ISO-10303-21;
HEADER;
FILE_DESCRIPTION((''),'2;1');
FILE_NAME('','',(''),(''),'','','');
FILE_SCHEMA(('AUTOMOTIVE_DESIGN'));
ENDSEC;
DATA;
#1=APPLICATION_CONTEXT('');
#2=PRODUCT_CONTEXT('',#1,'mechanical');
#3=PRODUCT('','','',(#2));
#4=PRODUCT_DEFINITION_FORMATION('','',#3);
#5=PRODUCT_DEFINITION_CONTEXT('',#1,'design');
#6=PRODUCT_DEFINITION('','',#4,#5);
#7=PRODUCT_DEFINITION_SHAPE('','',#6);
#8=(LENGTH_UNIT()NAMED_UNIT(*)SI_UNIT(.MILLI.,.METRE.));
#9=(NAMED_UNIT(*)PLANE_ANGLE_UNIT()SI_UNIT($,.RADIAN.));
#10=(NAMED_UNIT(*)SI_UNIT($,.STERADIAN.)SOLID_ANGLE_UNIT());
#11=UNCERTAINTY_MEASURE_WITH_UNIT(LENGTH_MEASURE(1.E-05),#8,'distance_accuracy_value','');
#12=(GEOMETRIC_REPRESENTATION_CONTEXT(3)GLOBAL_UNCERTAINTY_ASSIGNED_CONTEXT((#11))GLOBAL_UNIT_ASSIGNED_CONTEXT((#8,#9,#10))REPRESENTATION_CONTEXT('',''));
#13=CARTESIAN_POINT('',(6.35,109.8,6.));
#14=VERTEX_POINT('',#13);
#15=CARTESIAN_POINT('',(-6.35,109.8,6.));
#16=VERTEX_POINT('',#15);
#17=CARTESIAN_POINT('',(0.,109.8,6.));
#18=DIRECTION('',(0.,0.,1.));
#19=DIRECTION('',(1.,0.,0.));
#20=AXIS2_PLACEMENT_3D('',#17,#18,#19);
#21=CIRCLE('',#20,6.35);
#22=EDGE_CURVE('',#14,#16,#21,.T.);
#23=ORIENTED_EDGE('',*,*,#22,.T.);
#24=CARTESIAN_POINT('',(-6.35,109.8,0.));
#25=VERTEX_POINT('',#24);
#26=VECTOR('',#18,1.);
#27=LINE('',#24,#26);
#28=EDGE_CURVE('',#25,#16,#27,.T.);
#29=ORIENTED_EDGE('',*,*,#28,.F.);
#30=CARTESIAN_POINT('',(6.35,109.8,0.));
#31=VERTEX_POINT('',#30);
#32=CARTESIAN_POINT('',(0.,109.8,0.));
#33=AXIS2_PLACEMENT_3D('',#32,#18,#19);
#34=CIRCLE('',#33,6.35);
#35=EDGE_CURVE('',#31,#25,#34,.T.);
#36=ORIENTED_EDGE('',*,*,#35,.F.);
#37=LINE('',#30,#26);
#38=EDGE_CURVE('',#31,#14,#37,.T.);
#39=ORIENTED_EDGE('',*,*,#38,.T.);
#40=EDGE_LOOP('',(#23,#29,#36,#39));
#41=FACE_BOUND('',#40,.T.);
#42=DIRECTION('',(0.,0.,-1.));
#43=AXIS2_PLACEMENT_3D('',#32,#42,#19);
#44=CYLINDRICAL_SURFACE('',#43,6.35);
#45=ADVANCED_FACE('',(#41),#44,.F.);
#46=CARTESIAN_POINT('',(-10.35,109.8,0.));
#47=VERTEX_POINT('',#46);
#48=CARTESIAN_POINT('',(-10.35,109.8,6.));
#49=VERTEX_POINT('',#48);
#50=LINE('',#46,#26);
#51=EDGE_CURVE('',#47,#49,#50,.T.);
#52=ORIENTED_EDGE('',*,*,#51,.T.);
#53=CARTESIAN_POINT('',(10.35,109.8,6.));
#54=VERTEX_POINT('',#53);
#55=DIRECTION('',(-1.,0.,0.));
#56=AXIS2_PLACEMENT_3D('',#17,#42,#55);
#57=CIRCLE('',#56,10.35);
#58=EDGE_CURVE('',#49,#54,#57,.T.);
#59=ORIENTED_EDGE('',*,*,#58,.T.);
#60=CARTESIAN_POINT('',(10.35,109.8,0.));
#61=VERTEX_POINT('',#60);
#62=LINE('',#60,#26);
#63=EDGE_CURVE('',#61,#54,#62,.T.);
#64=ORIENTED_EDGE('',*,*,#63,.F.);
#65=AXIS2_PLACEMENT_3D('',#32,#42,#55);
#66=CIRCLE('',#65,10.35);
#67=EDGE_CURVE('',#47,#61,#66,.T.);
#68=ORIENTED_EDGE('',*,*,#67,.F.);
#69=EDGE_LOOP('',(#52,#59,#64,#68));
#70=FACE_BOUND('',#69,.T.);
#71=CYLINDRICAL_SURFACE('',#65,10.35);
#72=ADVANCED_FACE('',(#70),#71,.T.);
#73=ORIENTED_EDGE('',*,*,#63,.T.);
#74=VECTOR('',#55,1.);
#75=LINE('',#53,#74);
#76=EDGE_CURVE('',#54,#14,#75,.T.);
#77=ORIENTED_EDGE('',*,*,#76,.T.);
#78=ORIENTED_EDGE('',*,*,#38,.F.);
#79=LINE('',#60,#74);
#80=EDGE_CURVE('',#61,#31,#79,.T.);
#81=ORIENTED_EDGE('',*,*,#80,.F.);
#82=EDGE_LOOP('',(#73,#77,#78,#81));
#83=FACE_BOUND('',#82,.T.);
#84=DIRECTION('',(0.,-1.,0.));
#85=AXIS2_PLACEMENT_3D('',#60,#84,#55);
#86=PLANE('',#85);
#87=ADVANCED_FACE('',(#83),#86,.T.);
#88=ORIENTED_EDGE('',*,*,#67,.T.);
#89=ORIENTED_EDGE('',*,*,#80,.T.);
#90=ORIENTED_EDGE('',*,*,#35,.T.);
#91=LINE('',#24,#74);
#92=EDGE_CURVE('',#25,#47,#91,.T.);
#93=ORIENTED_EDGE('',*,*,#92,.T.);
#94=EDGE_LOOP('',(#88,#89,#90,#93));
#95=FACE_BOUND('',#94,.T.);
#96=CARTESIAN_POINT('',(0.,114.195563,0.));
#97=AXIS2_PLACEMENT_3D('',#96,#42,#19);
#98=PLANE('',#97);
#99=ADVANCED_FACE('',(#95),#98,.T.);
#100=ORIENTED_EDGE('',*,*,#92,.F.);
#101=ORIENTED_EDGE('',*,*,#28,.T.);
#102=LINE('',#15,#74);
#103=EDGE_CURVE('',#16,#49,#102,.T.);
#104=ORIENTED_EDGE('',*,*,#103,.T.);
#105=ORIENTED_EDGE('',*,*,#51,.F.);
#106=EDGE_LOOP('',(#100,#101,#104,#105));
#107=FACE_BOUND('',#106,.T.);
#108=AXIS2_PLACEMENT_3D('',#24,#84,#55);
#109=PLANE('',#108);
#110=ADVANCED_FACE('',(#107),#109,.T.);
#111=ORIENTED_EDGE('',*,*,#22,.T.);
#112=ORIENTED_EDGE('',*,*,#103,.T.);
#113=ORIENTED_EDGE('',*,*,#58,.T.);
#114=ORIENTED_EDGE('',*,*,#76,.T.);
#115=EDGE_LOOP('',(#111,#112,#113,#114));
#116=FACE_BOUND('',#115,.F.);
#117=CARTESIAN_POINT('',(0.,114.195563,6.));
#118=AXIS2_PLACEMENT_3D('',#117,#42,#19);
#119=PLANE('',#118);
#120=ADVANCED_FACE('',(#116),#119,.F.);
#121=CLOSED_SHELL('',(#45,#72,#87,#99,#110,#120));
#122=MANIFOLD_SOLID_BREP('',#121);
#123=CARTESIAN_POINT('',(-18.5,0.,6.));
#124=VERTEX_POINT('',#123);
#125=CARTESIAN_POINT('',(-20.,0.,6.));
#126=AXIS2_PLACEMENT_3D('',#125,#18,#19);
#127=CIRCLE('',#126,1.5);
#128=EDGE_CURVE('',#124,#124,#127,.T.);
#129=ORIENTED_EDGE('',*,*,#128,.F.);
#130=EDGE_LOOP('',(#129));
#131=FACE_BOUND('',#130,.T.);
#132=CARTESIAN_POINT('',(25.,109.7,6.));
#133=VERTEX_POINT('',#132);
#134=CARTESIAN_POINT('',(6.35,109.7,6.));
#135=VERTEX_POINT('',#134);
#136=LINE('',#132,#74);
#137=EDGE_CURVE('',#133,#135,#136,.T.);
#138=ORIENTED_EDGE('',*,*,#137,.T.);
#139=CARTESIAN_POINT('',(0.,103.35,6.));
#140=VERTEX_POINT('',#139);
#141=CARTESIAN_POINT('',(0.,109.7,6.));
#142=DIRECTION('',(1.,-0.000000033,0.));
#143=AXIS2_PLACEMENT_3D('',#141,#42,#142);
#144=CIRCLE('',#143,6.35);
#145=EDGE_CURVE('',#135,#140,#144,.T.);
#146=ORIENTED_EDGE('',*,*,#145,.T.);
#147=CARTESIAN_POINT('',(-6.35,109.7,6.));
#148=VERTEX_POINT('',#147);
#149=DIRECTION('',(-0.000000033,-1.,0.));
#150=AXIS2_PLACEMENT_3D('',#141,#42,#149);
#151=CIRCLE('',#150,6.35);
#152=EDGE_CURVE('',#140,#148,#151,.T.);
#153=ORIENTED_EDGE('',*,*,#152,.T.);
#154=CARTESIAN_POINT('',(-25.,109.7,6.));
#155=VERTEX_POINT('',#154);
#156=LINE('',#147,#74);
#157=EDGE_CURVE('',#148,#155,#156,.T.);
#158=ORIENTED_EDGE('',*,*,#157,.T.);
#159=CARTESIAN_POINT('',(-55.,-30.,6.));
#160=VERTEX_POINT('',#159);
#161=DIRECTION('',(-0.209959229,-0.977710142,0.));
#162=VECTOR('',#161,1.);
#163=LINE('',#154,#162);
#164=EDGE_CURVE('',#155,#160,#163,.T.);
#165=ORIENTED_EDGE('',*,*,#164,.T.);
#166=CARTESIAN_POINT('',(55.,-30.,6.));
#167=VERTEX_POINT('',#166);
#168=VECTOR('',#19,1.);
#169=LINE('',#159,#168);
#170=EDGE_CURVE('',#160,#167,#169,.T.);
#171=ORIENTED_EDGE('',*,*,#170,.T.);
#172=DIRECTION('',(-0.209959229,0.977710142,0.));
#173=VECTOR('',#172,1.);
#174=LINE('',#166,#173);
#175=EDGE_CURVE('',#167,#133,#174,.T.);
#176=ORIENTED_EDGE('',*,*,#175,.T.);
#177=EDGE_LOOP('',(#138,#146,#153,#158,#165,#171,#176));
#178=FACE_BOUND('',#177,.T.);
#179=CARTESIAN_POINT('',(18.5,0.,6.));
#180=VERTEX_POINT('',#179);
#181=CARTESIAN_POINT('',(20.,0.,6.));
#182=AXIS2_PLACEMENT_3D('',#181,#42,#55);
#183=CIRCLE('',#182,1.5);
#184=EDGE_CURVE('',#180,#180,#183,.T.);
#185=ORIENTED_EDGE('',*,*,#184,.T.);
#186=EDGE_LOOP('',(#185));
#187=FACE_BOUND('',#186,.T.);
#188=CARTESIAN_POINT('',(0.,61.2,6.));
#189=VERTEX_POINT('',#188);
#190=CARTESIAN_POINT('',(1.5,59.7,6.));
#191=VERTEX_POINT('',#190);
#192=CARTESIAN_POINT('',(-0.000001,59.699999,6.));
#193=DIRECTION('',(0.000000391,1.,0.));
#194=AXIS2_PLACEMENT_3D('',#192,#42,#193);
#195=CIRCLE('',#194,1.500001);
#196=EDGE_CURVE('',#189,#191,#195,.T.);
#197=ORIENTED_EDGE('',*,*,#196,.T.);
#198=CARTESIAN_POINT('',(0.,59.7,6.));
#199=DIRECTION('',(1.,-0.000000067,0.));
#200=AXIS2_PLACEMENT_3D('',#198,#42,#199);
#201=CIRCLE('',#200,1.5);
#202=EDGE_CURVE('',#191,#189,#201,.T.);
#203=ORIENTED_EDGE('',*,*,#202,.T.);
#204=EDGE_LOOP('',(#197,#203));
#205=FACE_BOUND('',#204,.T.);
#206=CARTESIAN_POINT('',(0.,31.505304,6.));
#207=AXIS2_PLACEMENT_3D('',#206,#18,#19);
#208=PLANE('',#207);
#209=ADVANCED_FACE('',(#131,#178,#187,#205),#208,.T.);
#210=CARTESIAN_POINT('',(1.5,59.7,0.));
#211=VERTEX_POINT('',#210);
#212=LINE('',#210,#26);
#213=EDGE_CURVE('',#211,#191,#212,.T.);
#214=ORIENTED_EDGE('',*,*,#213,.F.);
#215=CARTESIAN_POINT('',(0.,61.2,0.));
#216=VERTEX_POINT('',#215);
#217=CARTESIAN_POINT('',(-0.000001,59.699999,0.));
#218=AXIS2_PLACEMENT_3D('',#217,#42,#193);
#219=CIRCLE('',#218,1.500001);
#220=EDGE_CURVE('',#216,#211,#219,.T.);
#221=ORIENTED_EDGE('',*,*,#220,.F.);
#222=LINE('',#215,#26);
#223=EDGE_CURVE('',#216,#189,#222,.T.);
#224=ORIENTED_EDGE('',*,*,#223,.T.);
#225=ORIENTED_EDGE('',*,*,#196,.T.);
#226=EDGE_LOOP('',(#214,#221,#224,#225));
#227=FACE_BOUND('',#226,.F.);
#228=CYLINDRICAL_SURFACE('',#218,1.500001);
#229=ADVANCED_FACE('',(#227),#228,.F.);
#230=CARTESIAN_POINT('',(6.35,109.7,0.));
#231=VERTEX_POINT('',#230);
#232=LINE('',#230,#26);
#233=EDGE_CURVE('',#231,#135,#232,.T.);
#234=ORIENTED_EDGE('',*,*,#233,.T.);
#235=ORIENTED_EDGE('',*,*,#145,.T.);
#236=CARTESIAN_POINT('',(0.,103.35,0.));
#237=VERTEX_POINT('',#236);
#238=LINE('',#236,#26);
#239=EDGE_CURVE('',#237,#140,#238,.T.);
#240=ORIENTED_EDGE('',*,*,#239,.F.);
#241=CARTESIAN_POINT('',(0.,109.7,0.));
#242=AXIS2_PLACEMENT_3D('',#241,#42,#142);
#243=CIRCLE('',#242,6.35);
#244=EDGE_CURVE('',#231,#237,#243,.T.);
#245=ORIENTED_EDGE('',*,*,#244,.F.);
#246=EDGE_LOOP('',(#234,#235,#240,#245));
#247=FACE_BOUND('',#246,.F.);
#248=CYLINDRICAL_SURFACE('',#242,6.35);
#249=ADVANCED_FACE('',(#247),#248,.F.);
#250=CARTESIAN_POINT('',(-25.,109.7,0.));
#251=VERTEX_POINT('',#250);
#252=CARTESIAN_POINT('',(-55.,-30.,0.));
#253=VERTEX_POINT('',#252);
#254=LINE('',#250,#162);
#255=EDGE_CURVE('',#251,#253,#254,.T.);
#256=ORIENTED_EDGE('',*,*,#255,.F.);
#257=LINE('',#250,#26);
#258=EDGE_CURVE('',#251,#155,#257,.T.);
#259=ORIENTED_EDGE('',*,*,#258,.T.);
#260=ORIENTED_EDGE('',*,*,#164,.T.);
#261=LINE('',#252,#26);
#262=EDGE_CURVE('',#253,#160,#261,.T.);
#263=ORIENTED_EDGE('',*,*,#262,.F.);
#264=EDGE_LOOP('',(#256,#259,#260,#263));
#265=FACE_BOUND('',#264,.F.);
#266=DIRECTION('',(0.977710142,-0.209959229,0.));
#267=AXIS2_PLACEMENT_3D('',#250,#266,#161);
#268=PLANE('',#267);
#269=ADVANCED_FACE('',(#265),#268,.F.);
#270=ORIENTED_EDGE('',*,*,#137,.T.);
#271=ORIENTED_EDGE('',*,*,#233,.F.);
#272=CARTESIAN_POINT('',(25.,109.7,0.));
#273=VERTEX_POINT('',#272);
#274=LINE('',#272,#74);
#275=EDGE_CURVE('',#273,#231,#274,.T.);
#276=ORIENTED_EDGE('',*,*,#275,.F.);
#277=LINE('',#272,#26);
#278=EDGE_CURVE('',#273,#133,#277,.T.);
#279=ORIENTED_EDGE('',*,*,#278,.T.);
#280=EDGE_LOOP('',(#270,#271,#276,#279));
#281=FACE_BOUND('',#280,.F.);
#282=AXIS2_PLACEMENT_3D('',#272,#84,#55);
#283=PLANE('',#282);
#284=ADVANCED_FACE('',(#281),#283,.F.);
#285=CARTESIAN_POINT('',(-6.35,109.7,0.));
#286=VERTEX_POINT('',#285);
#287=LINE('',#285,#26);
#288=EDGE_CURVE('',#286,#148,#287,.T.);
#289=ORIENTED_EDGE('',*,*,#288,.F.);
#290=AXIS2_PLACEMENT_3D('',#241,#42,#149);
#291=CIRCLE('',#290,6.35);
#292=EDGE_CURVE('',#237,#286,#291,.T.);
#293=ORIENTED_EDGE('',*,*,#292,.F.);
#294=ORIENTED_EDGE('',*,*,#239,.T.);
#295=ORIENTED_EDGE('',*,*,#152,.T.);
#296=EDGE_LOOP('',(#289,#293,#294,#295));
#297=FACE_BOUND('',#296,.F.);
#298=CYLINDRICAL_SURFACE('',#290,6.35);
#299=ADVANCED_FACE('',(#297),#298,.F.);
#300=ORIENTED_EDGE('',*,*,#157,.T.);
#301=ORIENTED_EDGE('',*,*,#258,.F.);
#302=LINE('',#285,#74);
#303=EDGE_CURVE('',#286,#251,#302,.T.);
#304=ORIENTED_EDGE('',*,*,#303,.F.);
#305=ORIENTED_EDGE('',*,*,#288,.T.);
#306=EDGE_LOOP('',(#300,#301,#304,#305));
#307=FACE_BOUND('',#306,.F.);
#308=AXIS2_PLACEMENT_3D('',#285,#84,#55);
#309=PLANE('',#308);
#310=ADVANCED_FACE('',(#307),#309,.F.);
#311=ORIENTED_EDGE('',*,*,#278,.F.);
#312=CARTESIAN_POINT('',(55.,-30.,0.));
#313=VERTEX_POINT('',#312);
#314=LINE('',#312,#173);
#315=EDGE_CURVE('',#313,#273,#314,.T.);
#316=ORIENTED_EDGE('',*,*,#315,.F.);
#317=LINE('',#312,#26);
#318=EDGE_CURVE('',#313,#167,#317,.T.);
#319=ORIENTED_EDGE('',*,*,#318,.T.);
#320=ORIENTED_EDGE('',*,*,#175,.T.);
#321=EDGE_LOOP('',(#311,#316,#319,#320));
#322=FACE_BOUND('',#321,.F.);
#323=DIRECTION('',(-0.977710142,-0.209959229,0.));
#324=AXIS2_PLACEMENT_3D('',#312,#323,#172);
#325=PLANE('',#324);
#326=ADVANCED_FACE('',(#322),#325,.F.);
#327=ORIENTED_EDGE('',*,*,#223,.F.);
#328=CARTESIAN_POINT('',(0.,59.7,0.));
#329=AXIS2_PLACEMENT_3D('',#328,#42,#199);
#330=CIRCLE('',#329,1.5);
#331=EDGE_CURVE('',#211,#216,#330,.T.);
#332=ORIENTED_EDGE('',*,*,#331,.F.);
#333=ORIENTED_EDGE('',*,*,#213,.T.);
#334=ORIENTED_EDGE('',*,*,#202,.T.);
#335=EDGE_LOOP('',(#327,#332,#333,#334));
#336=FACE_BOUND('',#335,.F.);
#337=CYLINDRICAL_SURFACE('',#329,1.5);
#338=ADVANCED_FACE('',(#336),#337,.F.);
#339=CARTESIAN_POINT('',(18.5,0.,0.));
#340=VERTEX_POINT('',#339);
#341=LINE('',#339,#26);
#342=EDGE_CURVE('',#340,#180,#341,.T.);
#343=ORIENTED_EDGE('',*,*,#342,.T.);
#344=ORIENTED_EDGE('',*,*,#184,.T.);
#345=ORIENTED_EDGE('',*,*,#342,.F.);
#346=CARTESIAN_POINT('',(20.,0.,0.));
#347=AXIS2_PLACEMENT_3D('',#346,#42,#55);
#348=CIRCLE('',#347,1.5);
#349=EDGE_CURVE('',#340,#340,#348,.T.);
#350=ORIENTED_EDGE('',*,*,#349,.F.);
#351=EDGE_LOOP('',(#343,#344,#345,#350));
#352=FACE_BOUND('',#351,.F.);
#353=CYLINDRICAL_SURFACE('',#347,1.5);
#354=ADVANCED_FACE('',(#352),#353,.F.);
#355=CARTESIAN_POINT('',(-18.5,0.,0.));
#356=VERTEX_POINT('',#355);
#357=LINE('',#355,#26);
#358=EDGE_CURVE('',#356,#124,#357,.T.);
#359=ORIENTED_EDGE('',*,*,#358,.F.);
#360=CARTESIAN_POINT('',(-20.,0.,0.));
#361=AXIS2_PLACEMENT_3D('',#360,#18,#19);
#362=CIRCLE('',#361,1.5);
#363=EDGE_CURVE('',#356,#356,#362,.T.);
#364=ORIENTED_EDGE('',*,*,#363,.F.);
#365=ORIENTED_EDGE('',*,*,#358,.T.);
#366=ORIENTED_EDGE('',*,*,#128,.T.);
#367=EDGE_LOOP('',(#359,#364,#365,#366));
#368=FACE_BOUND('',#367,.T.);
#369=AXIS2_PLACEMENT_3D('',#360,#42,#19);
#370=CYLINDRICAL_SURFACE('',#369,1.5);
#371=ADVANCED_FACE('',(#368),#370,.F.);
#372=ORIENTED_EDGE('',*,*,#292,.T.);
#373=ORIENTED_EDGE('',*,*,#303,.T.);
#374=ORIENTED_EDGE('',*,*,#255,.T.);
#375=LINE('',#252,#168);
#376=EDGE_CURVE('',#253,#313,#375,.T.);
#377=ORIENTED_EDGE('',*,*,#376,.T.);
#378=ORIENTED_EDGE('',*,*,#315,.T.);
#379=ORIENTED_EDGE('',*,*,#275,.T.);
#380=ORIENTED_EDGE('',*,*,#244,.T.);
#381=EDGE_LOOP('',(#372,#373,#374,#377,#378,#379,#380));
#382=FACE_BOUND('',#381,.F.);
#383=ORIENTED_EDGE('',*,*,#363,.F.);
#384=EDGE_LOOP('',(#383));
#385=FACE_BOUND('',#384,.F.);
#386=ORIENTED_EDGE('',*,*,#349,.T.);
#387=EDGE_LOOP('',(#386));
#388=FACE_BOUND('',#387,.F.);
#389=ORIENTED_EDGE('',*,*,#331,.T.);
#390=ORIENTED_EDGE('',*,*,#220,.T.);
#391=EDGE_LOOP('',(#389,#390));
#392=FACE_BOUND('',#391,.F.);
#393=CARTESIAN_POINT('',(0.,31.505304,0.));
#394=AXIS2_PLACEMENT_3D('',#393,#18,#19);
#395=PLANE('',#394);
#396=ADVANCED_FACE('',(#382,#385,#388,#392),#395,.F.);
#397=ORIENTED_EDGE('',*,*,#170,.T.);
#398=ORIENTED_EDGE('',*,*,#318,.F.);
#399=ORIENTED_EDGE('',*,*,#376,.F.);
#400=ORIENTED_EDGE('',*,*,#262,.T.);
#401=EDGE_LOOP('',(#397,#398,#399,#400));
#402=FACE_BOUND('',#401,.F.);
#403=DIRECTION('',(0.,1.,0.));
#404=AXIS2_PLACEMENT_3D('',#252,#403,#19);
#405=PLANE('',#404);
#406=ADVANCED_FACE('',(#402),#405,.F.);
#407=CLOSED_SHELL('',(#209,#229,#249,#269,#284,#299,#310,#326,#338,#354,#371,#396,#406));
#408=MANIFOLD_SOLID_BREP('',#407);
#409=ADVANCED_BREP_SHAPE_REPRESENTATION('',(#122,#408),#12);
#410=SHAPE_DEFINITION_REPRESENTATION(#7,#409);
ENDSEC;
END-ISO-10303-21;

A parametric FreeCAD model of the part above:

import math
import FreeCAD as App
import Part
import Sketcher
Q = App.Units.Quantity

doc = App.newDocument("Part")
body = doc.addObject("PartDesign::Body", "Body")

# Sketch on XY plane
sketch1 = body.newObject("Sketcher::SketchObject", "Sketch")
sketch1.AttachmentSupport = (doc.getObject("XY_Plane"), [""])
sketch1.MapMode = "FlatFace"
sketch1.addGeometry([
    Part.LineSegment(App.Vector(-55, -30, 0), App.Vector(55, -30, 0)),  # 0
    Part.LineSegment(App.Vector(55, -30, 0), App.Vector(25, 109.7, 0)),  # 1
    Part.LineSegment(App.Vector(25, 109.7, 0), App.Vector(6.3, 109.7, 0)),  # 2
    Part.ArcOfCircle(Part.Circle(App.Vector(0, 109.7, 0), App.Vector(0, 0, 1), 6.4), math.radians(-90), math.radians(0)),  # 3
    Part.ArcOfCircle(Part.Circle(App.Vector(0, 109.7, 0), App.Vector(0, 0, 1), 6.4), math.radians(-180), math.radians(-90)),  # 4
    Part.LineSegment(App.Vector(-6.3, 109.7, 0), App.Vector(-25, 109.7, 0)),  # 5
    Part.LineSegment(App.Vector(-25, 109.7, 0), App.Vector(-55, -30, 0)),  # 6
    Part.Circle(App.Vector(-20, 0, 0), App.Vector(0, 0, 1), 1.5),  # 7
    Part.Circle(App.Vector(20, 0, 0), App.Vector(0, 0, 1), 1.5),  # 8
    Part.ArcOfCircle(Part.Circle(App.Vector(0, 59.7, 0), App.Vector(0, 0, 1), 1.5), math.radians(0), math.radians(90)),  # 9
    Part.ArcOfCircle(Part.Circle(App.Vector(0, 59.7, 0), App.Vector(0, 0, 1), 1.5), math.radians(90), math.radians(360)),  # 10
], False)
sketch1.addConstraint([
    Sketcher.Constraint("Coincident", 0, 2, 1, 1),
    Sketcher.Constraint("Coincident", 1, 2, 2, 1),
    Sketcher.Constraint("Coincident", 2, 2, 3, 2),
    Sketcher.Constraint("Tangent", 3, 1, 4, 2),
    Sketcher.Constraint("Coincident", 4, 1, 5, 1),
    Sketcher.Constraint("Coincident", 5, 2, 6, 1),
    Sketcher.Constraint("Coincident", 6, 2, 0, 1),
    Sketcher.Constraint("Tangent", 9, 1, 10, 2),
    Sketcher.Constraint("Coincident", 10, 1, 9, 2),
    Sketcher.Constraint("Horizontal", 0),
    Sketcher.Constraint("Horizontal", 2),
    Sketcher.Constraint("Horizontal", 5),
    Sketcher.Constraint("Equal", 3, 4),
    Sketcher.Constraint("Equal", 7, 8),
    Sketcher.Constraint("Equal", 8, 9),
    Sketcher.Constraint("Symmetric", 7, 3, 8, 3, -1, 1),
    Sketcher.Constraint("Symmetric", 2, 2, 4, 1, -2),
    Sketcher.Constraint("PointOnObject", 7, 3, -1),
    Sketcher.Constraint("PointOnObject", 9, 3, -2),
    Sketcher.Constraint("PointOnObject", 3, 1, -2),
    Sketcher.Constraint("PointOnObject", 10, 1, -2),
    Sketcher.Constraint("Horizontal", 4, 3, 1, 2),
    Sketcher.Constraint("Horizontal", 10, 3, 9, 1),
    Sketcher.Constraint("Equal", 2, 5),
    Sketcher.Constraint("Equal", 1, 6),
    Sketcher.Constraint("Diameter", 7, Q("3 mm")),
    Sketcher.Constraint("DistanceX", 0, 1, 0, 2, Q("110 mm")),
    Sketcher.Constraint("Radius", 3, Q("6.35 mm")),
    Sketcher.Constraint("DistanceX", 7, 3, -1, 1, Q("20 mm")),
    Sketcher.Constraint("DistanceY", 0, 2, -1, 1, Q("30 mm")),
    Sketcher.Constraint("DistanceX", -1, 1, 1, 2, Q("25 mm")),
    Sketcher.Constraint("DistanceY", 9, 3, 3, 3, Q("50.000001 mm")),
    Sketcher.Constraint("DistanceY", -1, 1, 3, 3, Q("109.7 mm")),
])
pad1 = body.newObject("PartDesign::Pad", "Pad")
pad1.Profile = sketch1
pad1.Length = 6
body2 = doc.addObject("PartDesign::Body", "Body001")

# Sketch on XY plane
sketch2 = body2.newObject("Sketcher::SketchObject", "Sketch001")
sketch2.AttachmentSupport = (doc.getObject("XY_Plane001"), [""])
sketch2.MapMode = "FlatFace"
sketch2.addGeometry([
    Part.ArcOfCircle(Part.Circle(App.Vector(0, 109.8, 0), App.Vector(0, 0, 1), 6.3), math.radians(0), math.radians(180)),
    Part.LineSegment(App.Vector(-6.3, 109.8, 0), App.Vector(-10.3, 109.8, 0)),
    Part.ArcOfCircle(Part.Circle(App.Vector(0, 109.8, 0), App.Vector(0, 0, 1), 10.3), math.radians(0), math.radians(180)),
    Part.LineSegment(App.Vector(10.3, 109.8, 0), App.Vector(6.3, 109.8, 0)),
], False)
sketch2.addConstraint([
    Sketcher.Constraint("Coincident", 0, 2, 1, 1),
    Sketcher.Constraint("Coincident", 1, 2, 2, 2),
    Sketcher.Constraint("Coincident", 2, 1, 3, 1),
    Sketcher.Constraint("Coincident", 3, 2, 0, 1),
    Sketcher.Constraint("Horizontal", 1),
    Sketcher.Constraint("Horizontal", 3),
    Sketcher.Constraint("Coincident", 2, 3, 0, 3),
    Sketcher.Constraint("Symmetric", 1, 2, 2, 1, -2),
    Sketcher.Constraint("Horizontal", 2, 3, 0, 2),
    Sketcher.Constraint("DistanceX", 1, 2, 1, 1, Q("4 mm")),
    Sketcher.Constraint("Radius", 0, Q("6.35 mm")),
    Sketcher.Constraint("DistanceY", -1, 1, 0, 3, Q("109.8 mm")),
])
pad2 = body2.newObject("PartDesign::Pad", "Pad001")
pad2.Profile = sketch2
pad2.Length = 6

doc.recompute()
